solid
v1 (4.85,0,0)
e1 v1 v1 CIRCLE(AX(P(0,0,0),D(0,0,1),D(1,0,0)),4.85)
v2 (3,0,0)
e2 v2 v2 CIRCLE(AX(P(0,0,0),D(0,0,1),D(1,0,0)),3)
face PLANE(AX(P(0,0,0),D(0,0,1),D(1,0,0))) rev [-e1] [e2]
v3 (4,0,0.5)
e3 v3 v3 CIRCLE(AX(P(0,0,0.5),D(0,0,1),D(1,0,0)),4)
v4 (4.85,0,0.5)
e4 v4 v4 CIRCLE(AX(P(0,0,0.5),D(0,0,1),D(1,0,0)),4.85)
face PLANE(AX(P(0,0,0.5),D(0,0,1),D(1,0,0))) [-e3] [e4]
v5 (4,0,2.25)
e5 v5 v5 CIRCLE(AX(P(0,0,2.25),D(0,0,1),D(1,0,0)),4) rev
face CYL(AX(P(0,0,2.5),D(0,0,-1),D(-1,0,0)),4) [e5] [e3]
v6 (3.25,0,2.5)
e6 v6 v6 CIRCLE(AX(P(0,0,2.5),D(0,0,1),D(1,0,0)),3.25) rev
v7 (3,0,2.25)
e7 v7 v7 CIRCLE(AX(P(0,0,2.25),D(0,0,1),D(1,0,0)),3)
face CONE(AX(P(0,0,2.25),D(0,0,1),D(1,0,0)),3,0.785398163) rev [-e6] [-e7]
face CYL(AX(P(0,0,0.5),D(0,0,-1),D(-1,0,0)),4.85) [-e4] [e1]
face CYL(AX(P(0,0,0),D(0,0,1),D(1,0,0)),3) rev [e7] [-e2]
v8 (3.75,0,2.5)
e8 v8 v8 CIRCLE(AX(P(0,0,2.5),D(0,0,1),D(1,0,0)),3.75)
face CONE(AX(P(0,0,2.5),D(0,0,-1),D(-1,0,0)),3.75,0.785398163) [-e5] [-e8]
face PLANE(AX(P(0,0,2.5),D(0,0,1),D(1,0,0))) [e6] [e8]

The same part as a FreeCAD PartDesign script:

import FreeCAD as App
import Part
import Sketcher
from FreeCAD import Vector
Q = App.Units.Quantity


def edges_at(feature, points):
    """Names of the edges that pass closest to the given points."""
    edges = feature.Shape.Edges
    near = lambda p: min(range(len(edges)), key=lambda i: edges[i].distToShape(Part.Vertex(*p))[0])
    return sorted({f"Edge{near(p) + 1}" for p in points})

doc = App.newDocument("Part")
body = doc.addObject("PartDesign::Body", "Body")

sketch1 = doc.addObject("Sketcher::SketchObject", "Sketch")
body.addObject(sketch1)
sketch1.AttachmentSupport = (doc.XY_Plane, [""])
sketch1.MapMode = "FlatFace"
sketch1.addGeometry(Part.Circle(Vector(0, 0, 0), Vector(0, 0, 1), 4.8), False)
sketch1.addConstraint([
    Sketcher.Constraint("Coincident", 0, 3, -1, 1),
    Sketcher.Constraint("Diameter", 0, Q("9.7 mm")),
])
pad1 = doc.addObject("PartDesign::Pad", "Pad")
body.addObject(pad1)
pad1.Profile = sketch1
pad1.Length = 0.5

sketch2 = doc.addObject("Sketcher::SketchObject", "Sketch001")
body.addObject(sketch2)
sketch2.AttachmentSupport = (doc.XY_Plane, [""])
sketch2.MapMode = "FlatFace"
sketch2.AttachmentOffset = App.Placement(Vector(0, 0, 0.5), App.Rotation())
sketch2.addGeometry(Part.Circle(Vector(0, 0, 0), Vector(0, 0, 1), 4), False)
sketch2.addConstraint([
    Sketcher.Constraint("Coincident", 0, 3, -1, 1),
    Sketcher.Constraint("Diameter", 0, Q("8 mm")),
])
pad2 = doc.addObject("PartDesign::Pad", "Pad001")
body.addObject(pad2)
pad2.Profile = sketch2
pad2.Length = 2

sketch3 = doc.addObject("Sketcher::SketchObject", "Sketch002")
body.addObject(sketch3)
sketch3.AttachmentSupport = (doc.XY_Plane, [""])
sketch3.MapMode = "FlatFace"
sketch3.AttachmentOffset = App.Placement(Vector(0, 0, 2.5), App.Rotation())
sketch3.addGeometry(Part.Circle(Vector(0, 0, 0), Vector(0, 0, 1), 3), False)
sketch3.addConstraint([
    Sketcher.Constraint("Coincident", 0, 3, -1, 1),
    Sketcher.Constraint("Diameter", 0, Q("6 mm")),
])
pocket1 = doc.addObject("PartDesign::Pocket", "Pocket")
body.addObject(pocket1)
pocket1.Profile = sketch3
pocket1.Type = "ThroughAll"
doc.recompute()

chamfer = doc.addObject("PartDesign::Chamfer", "Chamfer")
body.addObject(chamfer)
chamfer.Base = (pocket1, edges_at(pocket1, [(-3, 0, 2.5), (-4, 0, 2.5)]))
chamfer.Size = 0.25

doc.recompute()
